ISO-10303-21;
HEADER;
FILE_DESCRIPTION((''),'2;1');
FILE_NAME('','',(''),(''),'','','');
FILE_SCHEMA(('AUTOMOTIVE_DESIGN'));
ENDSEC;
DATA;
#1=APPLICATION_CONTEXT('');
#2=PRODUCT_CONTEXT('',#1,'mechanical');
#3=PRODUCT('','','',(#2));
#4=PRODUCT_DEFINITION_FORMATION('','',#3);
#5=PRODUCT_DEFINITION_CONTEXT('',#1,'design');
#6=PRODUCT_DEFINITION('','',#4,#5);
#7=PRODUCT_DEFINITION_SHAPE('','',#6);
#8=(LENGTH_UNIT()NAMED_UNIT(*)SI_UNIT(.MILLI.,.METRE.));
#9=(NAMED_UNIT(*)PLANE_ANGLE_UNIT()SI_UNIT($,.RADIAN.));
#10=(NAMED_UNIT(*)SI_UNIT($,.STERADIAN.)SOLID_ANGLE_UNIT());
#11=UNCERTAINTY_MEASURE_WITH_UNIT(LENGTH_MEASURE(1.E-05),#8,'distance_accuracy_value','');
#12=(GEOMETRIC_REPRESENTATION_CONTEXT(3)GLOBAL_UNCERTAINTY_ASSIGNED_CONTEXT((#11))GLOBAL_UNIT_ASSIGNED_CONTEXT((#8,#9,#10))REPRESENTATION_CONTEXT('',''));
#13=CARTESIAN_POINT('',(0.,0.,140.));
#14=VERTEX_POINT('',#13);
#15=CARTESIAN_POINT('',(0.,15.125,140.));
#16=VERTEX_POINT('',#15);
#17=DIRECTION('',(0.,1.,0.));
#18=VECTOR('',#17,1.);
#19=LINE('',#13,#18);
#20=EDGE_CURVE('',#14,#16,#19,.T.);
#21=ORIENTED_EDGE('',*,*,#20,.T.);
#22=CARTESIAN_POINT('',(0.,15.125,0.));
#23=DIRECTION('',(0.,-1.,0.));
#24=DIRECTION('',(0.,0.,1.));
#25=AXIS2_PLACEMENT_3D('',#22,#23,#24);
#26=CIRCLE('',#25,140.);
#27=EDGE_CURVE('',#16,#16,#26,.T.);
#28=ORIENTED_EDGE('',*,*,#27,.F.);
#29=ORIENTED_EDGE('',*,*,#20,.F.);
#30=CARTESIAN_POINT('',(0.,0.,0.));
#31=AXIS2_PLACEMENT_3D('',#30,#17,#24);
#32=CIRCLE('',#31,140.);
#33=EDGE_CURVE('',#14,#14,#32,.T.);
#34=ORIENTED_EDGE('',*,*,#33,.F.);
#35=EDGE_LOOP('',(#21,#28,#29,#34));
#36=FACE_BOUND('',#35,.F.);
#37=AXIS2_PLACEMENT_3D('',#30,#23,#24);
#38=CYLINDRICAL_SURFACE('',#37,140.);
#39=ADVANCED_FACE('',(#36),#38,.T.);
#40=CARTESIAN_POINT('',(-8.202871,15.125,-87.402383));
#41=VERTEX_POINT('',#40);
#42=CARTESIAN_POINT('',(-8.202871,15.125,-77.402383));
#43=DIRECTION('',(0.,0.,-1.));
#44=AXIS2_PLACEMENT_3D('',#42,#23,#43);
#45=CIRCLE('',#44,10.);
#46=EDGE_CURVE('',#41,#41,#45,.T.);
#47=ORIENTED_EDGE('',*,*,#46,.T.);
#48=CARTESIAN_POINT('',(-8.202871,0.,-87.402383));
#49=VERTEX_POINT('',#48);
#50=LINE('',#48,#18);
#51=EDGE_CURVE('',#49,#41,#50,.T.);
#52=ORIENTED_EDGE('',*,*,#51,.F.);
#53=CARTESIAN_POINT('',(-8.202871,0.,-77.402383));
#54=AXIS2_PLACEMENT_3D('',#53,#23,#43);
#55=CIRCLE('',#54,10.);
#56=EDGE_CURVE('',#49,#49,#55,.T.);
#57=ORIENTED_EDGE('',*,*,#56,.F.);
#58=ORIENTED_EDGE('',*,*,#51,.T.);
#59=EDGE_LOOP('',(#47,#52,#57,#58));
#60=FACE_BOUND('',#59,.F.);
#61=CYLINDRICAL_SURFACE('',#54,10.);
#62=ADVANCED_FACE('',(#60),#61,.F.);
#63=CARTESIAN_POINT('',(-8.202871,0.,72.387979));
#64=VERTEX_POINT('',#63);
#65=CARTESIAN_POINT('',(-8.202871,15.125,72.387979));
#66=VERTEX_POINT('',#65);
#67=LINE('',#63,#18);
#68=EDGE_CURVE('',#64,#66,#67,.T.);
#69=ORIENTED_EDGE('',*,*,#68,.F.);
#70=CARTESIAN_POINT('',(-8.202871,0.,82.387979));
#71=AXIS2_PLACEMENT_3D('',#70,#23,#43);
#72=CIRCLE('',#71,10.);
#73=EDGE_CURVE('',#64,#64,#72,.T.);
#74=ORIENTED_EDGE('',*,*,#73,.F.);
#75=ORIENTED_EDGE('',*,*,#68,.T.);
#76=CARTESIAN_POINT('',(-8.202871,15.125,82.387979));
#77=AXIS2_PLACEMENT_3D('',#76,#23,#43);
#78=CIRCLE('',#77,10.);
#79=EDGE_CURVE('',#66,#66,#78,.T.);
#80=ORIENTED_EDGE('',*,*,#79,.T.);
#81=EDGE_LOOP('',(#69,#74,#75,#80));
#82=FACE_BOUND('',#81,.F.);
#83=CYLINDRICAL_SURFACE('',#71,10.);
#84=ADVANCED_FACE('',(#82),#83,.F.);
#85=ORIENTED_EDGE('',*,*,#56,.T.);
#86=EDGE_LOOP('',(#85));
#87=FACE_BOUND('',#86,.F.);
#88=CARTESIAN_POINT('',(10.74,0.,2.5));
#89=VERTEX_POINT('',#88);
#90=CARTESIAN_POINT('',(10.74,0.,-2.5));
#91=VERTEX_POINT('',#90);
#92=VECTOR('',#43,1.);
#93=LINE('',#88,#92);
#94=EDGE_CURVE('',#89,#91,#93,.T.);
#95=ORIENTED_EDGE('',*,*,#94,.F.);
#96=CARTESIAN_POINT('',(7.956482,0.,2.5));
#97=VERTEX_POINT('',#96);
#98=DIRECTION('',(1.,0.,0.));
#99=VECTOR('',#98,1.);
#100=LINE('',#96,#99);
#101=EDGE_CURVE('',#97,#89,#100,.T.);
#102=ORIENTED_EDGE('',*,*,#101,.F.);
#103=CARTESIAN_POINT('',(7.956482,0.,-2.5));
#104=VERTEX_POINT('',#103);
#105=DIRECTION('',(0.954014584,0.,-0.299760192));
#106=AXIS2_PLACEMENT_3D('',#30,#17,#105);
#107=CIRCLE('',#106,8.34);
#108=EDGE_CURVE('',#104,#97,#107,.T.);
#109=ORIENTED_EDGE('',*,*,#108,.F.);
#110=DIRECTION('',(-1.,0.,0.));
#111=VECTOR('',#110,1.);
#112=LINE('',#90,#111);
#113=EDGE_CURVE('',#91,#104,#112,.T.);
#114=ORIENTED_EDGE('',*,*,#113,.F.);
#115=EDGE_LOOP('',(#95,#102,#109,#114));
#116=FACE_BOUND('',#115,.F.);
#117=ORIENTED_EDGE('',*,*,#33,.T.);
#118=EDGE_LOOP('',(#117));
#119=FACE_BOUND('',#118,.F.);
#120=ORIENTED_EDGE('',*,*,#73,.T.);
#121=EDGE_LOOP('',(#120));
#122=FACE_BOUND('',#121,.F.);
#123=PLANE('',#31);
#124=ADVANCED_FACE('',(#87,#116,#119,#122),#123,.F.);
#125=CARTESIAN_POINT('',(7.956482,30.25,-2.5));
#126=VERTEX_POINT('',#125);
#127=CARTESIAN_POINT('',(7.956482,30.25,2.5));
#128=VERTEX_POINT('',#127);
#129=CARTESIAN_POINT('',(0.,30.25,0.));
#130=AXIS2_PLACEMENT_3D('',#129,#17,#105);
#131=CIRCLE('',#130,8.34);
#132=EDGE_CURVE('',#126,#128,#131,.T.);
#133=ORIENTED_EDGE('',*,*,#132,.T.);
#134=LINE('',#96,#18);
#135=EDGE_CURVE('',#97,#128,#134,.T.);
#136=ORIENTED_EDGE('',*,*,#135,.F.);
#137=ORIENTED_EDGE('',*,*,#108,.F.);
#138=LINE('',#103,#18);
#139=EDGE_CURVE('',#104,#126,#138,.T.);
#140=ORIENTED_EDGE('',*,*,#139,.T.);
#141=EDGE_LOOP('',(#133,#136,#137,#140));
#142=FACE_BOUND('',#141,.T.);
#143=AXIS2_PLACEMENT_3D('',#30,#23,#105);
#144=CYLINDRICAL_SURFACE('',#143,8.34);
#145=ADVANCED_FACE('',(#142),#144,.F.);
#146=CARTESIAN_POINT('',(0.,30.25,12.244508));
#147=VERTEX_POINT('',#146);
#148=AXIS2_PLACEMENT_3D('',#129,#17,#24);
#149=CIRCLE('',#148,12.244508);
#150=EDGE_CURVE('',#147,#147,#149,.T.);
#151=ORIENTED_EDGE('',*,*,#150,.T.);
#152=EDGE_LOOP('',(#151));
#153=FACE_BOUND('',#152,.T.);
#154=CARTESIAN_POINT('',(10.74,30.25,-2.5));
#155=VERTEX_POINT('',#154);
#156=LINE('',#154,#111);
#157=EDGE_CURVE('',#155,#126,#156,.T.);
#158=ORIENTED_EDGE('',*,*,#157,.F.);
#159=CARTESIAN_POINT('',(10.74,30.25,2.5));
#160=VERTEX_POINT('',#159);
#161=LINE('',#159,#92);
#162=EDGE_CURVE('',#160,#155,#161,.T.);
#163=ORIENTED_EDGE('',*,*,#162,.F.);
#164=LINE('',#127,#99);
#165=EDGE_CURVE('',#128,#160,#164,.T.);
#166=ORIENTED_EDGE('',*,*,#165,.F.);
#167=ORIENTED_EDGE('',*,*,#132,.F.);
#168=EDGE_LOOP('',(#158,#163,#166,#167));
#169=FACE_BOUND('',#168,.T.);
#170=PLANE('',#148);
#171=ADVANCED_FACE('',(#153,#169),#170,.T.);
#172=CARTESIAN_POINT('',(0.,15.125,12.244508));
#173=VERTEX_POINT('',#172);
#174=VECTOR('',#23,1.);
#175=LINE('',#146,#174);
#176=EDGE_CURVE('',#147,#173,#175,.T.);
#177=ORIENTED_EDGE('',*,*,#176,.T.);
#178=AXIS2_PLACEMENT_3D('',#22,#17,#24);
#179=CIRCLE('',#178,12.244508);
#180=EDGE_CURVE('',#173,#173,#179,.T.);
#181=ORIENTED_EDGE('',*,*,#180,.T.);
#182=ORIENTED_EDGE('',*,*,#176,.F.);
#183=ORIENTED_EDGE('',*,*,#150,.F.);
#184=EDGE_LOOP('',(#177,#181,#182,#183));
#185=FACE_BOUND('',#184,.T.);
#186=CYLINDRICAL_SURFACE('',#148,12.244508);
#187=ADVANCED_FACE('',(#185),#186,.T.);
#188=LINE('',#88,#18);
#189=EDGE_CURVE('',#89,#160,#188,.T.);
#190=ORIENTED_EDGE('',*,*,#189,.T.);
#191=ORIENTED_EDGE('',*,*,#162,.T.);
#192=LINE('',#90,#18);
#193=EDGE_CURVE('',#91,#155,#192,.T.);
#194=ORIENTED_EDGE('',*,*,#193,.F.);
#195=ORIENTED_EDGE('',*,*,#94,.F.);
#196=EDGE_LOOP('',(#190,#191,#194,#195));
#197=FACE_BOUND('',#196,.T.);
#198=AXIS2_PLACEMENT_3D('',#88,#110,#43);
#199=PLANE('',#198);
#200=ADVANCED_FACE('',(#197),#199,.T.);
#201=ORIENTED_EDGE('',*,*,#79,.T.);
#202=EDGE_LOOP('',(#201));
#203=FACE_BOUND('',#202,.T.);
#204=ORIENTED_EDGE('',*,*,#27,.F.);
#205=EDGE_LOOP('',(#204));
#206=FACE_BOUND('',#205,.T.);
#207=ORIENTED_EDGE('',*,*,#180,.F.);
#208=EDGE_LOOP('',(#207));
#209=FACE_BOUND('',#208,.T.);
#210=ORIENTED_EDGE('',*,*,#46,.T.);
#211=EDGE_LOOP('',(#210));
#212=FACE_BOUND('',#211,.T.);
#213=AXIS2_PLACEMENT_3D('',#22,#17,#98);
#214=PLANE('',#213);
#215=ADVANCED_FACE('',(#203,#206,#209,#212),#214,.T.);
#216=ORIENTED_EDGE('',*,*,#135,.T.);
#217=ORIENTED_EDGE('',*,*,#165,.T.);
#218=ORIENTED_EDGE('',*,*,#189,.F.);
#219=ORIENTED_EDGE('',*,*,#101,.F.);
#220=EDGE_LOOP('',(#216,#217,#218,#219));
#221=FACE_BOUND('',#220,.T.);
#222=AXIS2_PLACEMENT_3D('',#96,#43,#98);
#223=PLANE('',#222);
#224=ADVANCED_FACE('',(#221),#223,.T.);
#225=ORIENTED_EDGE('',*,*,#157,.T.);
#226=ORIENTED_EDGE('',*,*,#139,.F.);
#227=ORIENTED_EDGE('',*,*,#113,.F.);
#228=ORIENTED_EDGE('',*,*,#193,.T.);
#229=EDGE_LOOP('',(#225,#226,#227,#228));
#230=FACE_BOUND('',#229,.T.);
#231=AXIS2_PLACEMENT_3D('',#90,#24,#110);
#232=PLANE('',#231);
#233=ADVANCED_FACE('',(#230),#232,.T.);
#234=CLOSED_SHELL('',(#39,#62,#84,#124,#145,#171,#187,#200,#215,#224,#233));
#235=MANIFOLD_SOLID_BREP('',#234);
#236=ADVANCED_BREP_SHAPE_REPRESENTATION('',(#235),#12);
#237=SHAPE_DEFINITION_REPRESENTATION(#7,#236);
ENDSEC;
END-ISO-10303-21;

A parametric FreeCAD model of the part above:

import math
import FreeCAD as App
import Part
import Sketcher

doc = App.newDocument("Part")
body = doc.addObject("PartDesign::Body", "Body")

# Sketch on XZ plane
sketch1 = body.newObject("Sketcher::SketchObject", "Sketch")
sketch1.AttachmentSupport = (doc.getObject("XZ_Plane"), [""])
sketch1.MapMode = "FlatFace"
sketch1.addGeometry([
    Part.Circle(App.Vector(0, 0, 0), App.Vector(0, 0, 1), 140),  # 0
    Part.LineSegment(App.Vector(8, -2.5, 0), App.Vector(10.7, -2.5, 0)),  # 1
    Part.LineSegment(App.Vector(10.7, -2.5, 0), App.Vector(10.7, 2.5, 0)),  # 2
    Part.LineSegment(App.Vector(10.7, 2.5, 0), App.Vector(8, 2.5, 0)),  # 3
    Part.ArcOfCircle(Part.Circle(App.Vector(0, 0, 0), App.Vector(0, 0, 1), 8.3), math.radians(17), math.radians(343)),  # 4
], False)
sketch1.addConstraint([
    Sketcher.Constraint("Coincident", 1, 2, 2, 1),
    Sketcher.Constraint("Coincident", 2, 2, 3, 1),
    Sketcher.Constraint("Coincident", 3, 2, 4, 1),
    Sketcher.Constraint("Coincident", 4, 2, 1, 1),
    Sketcher.Constraint("Horizontal", 1),
    Sketcher.Constraint("Vertical", 2),
    Sketcher.Constraint("Horizontal", 3),
    Sketcher.Constraint("Coincident", 0, 3, -1, 1),
    Sketcher.Constraint("Coincident", 4, 3, -1, 1),
    Sketcher.Constraint("Vertical", 3, 2, 4, 2),
    Sketcher.Constraint("Diameter", 0, 280.0),
    Sketcher.Constraint("DistanceY", 2, 1, 2, 2, 5.0),
    Sketcher.Constraint("Radius", 4, 8.34),
    Sketcher.Constraint("DistanceX", -1, 1, 1, 2, 10.74),
])
pad1 = body.newObject("PartDesign::Pad", "Pad")
pad1.Profile = sketch1
pad1.Length = 30.25
pad1.Reversed = True

# Sketch on XZ plane
sketch2 = body.newObject("Sketcher::SketchObject", "Sketch001")
sketch2.AttachmentSupport = (doc.getObject("XZ_Plane"), [""])
sketch2.MapMode = "FlatFace"
sketch2.AttachmentOffset = App.Placement(App.Vector(0, 0, -30.25), App.Rotation())
sketch2.addGeometry([
    Part.Circle(App.Vector(0, 0, 0), App.Vector(0, 0, 1), 36),
    Part.Circle(App.Vector(0, 0, 0), App.Vector(0, 0, 1), 12),
], False)
sketch2.addConstraint([
    Sketcher.Constraint("Coincident", 0, 3, -1, 1),
    Sketcher.Constraint("Coincident", 1, 3, -1, 1),
    Sketcher.Constraint("Diameter", 0, 73.0),
    Sketcher.Constraint("Diameter", 1, 24.489015),
])
pocket1 = body.newObject("PartDesign::Pocket", "Pocket")
pocket1.Profile = sketch2
pocket1.Length = 15.125
pocket1.Reversed = True

# Sketch on XZ plane
sketch3 = body.newObject("Sketcher::SketchObject", "Sketch002")
sketch3.AttachmentSupport = (doc.getObject("XZ_Plane"), [""])
sketch3.MapMode = "FlatFace"
sketch3.AttachmentOffset = App.Placement(App.Vector(0, 0, -15.125), App.Rotation())
sketch3.addGeometry([
    Part.Circle(App.Vector(0, 0, 0), App.Vector(0, 0, 1), 150),
    Part.Circle(App.Vector(0, 0, 0), App.Vector(0, 0, 1), 13),
], False)
sketch3.addConstraint([
    Sketcher.Constraint("Coincident", 0, 3, -1, 1),
    Sketcher.Constraint("Coincident", 1, 3, -1, 1),
    Sketcher.Constraint("Diameter", 0, 300.0),
    Sketcher.Constraint("Diameter", 1, 25.8774),
])
pocket2 = body.newObject("PartDesign::Pocket", "Pocket001")
pocket2.Profile = sketch3
pocket2.Length = 60

# Sketch on XZ plane
sketch4 = body.newObject("Sketcher::SketchObject", "Sketch003")
sketch4.AttachmentSupport = (doc.getObject("XZ_Plane"), [""])
sketch4.MapMode = "FlatFace"
sketch4.addGeometry([
    Part.Circle(App.Vector(-8, -77, 0), App.Vector(0, 0, 1), 10),
    Part.Circle(App.Vector(-8, 82, 0), App.Vector(0, 0, 1), 10),
], False)
sketch4.addConstraint([
    Sketcher.Constraint("Equal", 0, 1),
    Sketcher.Constraint("Vertical", 0, 3, 1, 3),
    Sketcher.Constraint("Diameter", 0, 20.0),
    Sketcher.Constraint("DistanceX", 0, 3, -1, 1, 8.202871),
    Sketcher.Constraint("DistanceY", -1, 1, 1, 3, 82.387979),
    Sketcher.Constraint("DistanceY", 0, 3, -1, 1, 77.402383),
])
pocket3 = body.newObject("PartDesign::Pocket", "Pocket002")
pocket3.Profile = sketch4
pocket3.Length = 20

doc.recompute()
